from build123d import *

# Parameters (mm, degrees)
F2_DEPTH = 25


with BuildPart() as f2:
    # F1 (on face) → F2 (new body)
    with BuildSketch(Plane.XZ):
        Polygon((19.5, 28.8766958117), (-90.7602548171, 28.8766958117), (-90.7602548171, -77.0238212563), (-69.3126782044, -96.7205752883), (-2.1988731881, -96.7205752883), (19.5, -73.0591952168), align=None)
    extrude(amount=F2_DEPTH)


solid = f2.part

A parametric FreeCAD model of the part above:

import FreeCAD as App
import Part
import Sketcher

V = App.Vector


def add_polygon(sketch, points):
    """Adds a closed chain of lines whose ends are joined by coincident constraints."""
    first, n = sketch.GeometryCount, len(points)
    for a, b in zip(points, points[1:] + points[:1]):
        sketch.addGeometry(Part.LineSegment(App.Vector(*a, 0), App.Vector(*b, 0)), False)
    for i in range(n):
        sketch.addConstraint(Sketcher.Constraint("Coincident", first + i, 2, first + (i + 1) % n, 1))

doc = App.newDocument("Part")
body = doc.addObject("PartDesign::Body", "Body")

# Sketch on XZ plane
sketch1 = doc.addObject("Sketcher::SketchObject", "Sketch")
body.addObject(sketch1)
sketch1.AttachmentSupport = (doc.XZ_Plane, [""])
sketch1.MapMode = "FlatFace"
add_polygon(sketch1, [(20, 29), (-91, 29), (-91, -77), (-69, -97), (-2, -97), (20, -73)])  # lines 0-5
sketch1.addConstraint([
    Sketcher.Constraint("Horizontal", 0),
    Sketcher.Constraint("Vertical", 1),
    Sketcher.Constraint("Horizontal", 3),
    Sketcher.Constraint("Vertical", 5),
    Sketcher.Constraint("DistanceX", -1, 1, 4, 2, 19.5),
    Sketcher.Constraint("DistanceY", 5, 1, 5, 2, 101.935891),
    Sketcher.Constraint("Distance", 4, 32.104548),
    Sketcher.Constraint("DistanceX", 0, 2, 0, 1, 110.260255),
    Sketcher.Constraint("DistanceX", 3, 1, 3, 2, 67.113805),
    Sketcher.Constraint("DistanceY", 1, 2, 1, 1, 105.900517),
    Sketcher.Constraint("DistanceY", 1, 2, -1, 1, 77.023821),
    Sketcher.Constraint("DistanceX", 2, 2, -1, 1, 69.312678),
])
pad1 = doc.addObject("PartDesign::Pad", "Pad")
body.addObject(pad1)
pad1.Profile = sketch1
pad1.Length = 25

doc.recompute()
